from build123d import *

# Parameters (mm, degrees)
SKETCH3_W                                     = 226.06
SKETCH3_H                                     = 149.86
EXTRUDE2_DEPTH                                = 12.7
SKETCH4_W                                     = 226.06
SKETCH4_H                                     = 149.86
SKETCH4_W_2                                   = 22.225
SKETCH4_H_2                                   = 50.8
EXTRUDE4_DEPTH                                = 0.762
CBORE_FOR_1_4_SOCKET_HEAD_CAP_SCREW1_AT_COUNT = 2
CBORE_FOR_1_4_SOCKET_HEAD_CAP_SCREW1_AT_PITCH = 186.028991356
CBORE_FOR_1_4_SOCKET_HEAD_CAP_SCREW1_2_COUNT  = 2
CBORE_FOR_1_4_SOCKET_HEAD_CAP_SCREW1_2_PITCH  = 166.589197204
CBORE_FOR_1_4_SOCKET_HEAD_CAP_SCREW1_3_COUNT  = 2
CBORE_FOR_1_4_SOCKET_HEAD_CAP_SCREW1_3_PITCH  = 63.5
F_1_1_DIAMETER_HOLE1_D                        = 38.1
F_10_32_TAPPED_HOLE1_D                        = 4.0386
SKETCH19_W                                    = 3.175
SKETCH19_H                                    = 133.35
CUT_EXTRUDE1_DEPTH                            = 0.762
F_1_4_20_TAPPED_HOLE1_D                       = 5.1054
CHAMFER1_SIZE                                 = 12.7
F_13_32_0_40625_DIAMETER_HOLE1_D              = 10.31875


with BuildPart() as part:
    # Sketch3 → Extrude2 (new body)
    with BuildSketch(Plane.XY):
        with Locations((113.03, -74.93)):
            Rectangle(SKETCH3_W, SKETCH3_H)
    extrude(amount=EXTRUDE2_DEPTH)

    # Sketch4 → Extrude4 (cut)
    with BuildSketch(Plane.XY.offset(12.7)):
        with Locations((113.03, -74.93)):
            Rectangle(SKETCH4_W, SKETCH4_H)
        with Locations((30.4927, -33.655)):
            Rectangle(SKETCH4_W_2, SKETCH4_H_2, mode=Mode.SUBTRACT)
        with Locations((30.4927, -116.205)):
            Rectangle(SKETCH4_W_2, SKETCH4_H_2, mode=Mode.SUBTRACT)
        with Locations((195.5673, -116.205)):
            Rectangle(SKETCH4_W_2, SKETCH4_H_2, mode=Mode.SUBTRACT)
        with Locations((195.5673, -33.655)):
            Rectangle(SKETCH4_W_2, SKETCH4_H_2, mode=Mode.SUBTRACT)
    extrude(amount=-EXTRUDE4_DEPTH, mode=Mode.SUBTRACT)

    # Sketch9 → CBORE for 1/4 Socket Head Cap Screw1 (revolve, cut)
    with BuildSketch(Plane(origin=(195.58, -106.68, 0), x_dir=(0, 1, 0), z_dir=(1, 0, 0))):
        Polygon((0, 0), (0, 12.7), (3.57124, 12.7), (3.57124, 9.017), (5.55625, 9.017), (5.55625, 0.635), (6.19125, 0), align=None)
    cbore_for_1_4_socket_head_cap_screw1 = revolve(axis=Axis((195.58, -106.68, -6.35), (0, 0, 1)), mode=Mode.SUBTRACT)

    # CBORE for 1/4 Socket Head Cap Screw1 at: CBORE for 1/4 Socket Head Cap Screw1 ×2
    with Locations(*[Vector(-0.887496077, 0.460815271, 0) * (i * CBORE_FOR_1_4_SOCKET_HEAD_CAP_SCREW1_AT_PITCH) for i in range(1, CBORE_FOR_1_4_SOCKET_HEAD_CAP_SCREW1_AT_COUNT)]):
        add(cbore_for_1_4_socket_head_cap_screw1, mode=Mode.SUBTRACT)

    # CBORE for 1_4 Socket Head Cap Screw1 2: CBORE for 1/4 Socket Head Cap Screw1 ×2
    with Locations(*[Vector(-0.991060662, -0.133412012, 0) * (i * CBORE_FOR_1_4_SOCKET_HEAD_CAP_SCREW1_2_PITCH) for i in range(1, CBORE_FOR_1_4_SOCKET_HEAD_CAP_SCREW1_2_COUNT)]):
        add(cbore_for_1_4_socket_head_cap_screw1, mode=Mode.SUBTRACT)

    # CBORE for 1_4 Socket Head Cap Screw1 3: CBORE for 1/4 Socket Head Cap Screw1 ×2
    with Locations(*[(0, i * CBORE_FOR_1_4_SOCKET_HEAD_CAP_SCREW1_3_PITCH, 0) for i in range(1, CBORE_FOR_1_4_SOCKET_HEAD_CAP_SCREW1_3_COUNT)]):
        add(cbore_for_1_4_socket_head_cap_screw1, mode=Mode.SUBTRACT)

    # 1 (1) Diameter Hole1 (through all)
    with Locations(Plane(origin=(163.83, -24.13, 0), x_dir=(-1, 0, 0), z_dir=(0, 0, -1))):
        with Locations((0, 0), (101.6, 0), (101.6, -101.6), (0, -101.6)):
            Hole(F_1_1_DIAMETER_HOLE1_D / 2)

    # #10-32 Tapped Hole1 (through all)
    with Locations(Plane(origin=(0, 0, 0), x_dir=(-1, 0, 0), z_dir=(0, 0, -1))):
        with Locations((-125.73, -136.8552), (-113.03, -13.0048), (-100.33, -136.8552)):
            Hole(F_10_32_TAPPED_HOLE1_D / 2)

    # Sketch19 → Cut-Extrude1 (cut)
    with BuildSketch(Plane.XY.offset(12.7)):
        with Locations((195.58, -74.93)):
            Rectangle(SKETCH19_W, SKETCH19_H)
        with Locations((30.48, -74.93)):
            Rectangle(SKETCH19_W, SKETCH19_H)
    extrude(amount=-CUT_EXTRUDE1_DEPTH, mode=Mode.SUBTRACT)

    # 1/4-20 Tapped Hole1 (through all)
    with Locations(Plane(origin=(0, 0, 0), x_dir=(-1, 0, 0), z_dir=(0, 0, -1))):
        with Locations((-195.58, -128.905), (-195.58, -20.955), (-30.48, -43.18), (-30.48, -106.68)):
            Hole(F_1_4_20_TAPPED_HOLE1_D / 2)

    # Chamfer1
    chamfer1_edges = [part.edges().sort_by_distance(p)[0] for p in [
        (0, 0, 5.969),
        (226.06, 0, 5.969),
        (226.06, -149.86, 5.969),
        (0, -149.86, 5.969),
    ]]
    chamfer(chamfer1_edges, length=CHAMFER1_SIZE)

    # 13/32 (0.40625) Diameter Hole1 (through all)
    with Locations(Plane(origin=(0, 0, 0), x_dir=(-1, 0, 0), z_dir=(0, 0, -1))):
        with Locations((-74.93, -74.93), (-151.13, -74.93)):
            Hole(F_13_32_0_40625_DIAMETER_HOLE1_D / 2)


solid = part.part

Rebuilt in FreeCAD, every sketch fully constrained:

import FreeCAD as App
import Part
import Sketcher
from FreeCAD import Vector
Q = App.Units.Quantity


def edges_at(feature, points):
    """Names of the edges that pass closest to the given points."""
    edges = feature.Shape.Edges
    near = lambda p: min(range(len(edges)), key=lambda i: edges[i].distToShape(Part.Vertex(*p))[0])
    return sorted({f"Edge{near(p) + 1}" for p in points})


def add_polygon(sketch, points):
    """Adds a closed chain of lines whose ends are joined by coincident constraints."""
    first, n = sketch.GeometryCount, len(points)
    for a, b in zip(points, points[1:] + points[:1]):
        sketch.addGeometry(Part.LineSegment(App.Vector(*a, 0), App.Vector(*b, 0)), False)
    for i in range(n):
        sketch.addConstraint(Sketcher.Constraint("Coincident", first + i, 2, first + (i + 1) % n, 1))

doc = App.newDocument("Part")
body = doc.addObject("PartDesign::Body", "Body")

# Sketch on XY plane
sketch1 = body.newObject("Sketcher::SketchObject", "Sketch")
sketch1.AttachmentSupport = (doc.getObject("XY_Plane"), [""])
sketch1.MapMode = "FlatFace"
add_polygon(sketch1, [(0, 0), (0, -149.86), (226.06, -149.86), (226.06, 0)])  # lines 0-3
sketch1.addConstraint([
    Sketcher.Constraint("Vertical", 0),
    Sketcher.Constraint("Horizontal", 1),
    Sketcher.Constraint("Vertical", 2),
    Sketcher.Constraint("Horizontal", 3),
    Sketcher.Constraint("Coincident", 3, 2, -1, 1),
    Sketcher.Constraint("DistanceX", 1, 1, 1, 2, Q("8.9 in")),
    Sketcher.Constraint("DistanceY", 0, 2, 0, 1, Q("5.9 in")),
])
pad1 = body.newObject("PartDesign::Pad", "Pad")
pad1.Profile = sketch1
pad1.Length = Q("0.5 in")

# Sketch on XY plane
sketch2 = body.newObject("Sketcher::SketchObject", "Sketch001")
sketch2.AttachmentSupport = (doc.getObject("XY_Plane"), [""])
sketch2.MapMode = "FlatFace"
sketch2.AttachmentOffset = App.Placement(Vector(0, 0, 0.5 * 25.4), App.Rotation())
add_polygon(sketch2, [(0, 0), (0, -149.86), (226.06, -149.86), (226.06, 0)])  # lines 0-3
add_polygon(sketch2, [(41.6052, -141.605), (19.3802, -141.605), (19.3802, -90.805), (41.6052, -90.805)])  # lines 4-7
add_polygon(sketch2, [(206.6798, -141.605), (184.4548, -141.605), (184.4548, -90.805), (206.6798, -90.805)])  # lines 8-11
add_polygon(sketch2, [(41.6052, -59.055), (19.3802, -59.055), (19.3802, -8.255), (41.6052, -8.255)])  # lines 12-15
add_polygon(sketch2, [(206.6798, -59.055), (184.4548, -59.055), (184.4548, -8.255), (206.6798, -8.255)])  # lines 16-19
sketch2.addConstraint([
    Sketcher.Constraint("Vertical", 0),
    Sketcher.Constraint("Horizontal", 1),
    Sketcher.Constraint("Vertical", 2),
    Sketcher.Constraint("Horizontal", 3),
    Sketcher.Constraint("Horizontal", 4),
    Sketcher.Constraint("Vertical", 5),
    Sketcher.Constraint("Horizontal", 6),
    Sketcher.Constraint("Vertical", 7),
    Sketcher.Constraint("Horizontal", 8),
    Sketcher.Constraint("Vertical", 9),
    Sketcher.Constraint("Horizontal", 10),
    Sketcher.Constraint("Vertical", 11),
    Sketcher.Constraint("Horizontal", 12),
    Sketcher.Constraint("Vertical", 13),
    Sketcher.Constraint("Horizontal", 14),
    Sketcher.Constraint("Vertical", 15),
    Sketcher.Constraint("Horizontal", 16),
    Sketcher.Constraint("Vertical", 17),
    Sketcher.Constraint("Horizontal", 18),
    Sketcher.Constraint("Vertical", 19),
    Sketcher.Constraint("Coincident", 3, 2, -1, 1),
    Sketcher.Constraint("Horizontal", 7, 2, 8, 2),
    Sketcher.Constraint("Horizontal", 6, 2, 9, 2),
    Sketcher.Constraint("Horizontal", 15, 2, 16, 2),
    Sketcher.Constraint("Horizontal", 14, 2, 17, 2),
    Sketcher.Constraint("Vertical", 5, 2, 12, 2),
    Sketcher.Constraint("Vertical", 7, 2, 14, 2),
    Sketcher.Constraint("Vertical", 9, 2, 16, 2),
    Sketcher.Constraint("Vertical", 11, 2, 18, 2),
    Sketcher.Constraint("Equal", 6, 8),
    Sketcher.Constraint("Equal", 11, 13),
    Sketcher.Constraint("DistanceY", 5, 1, 5, 2, Q("2 in")),
    Sketcher.Constraint("DistanceX", 1, 1, 1, 2, Q("8.9 in")),
    Sketcher.Constraint("DistanceY", 0, 2, 0, 1, Q("5.9 in")),
    Sketcher.Constraint("DistanceX", 4, 2, 4, 1, Q("0.875 in")),
    Sketcher.Constraint("DistanceY", 5, 2, 12, 2, Q("1.25 in")),
    Sketcher.Constraint("DistanceX", -1, 1, 4, 2, Q("0.763 in")),
    Sketcher.Constraint("DistanceY", 4, 2, -1, 1, Q("5.575 in")),
    Sketcher.Constraint("DistanceX", -1, 1, 8, 2, Q("7.262 in")),
])
pocket1 = body.newObject("PartDesign::Pocket", "Pocket")
pocket1.Profile = sketch2
pocket1.Length = Q("0.03 in")

# Sketch on YZ plane
sketch3 = body.newObject("Sketcher::SketchObject", "Sketch002")
sketch3.AttachmentSupport = (doc.getObject("YZ_Plane"), [""])
sketch3.MapMode = "FlatFace"
sketch3.AttachmentOffset = App.Placement(Vector(0, 0, 7.7 * 25.4), App.Rotation())
add_polygon(sketch3, [(-106.68, 12.7), (-106.68, 0), (-100.48875, 0), (-101.12375, 0.635), (-101.12375, 9.017), (-103.10876, 9.017), (-103.10876, 12.7)])  # lines 0-6
sketch3.addGeometry(Part.LineSegment(Vector(-106.68, 0, 0), Vector(-106.68, 12.7, 0)), True)  # axis
sketch3.addConstraint([
    Sketcher.Constraint("Vertical", 0),
    Sketcher.Constraint("Horizontal", 1),
    Sketcher.Constraint("Vertical", 3),
    Sketcher.Constraint("Horizontal", 4),
    Sketcher.Constraint("Vertical", 5),
    Sketcher.Constraint("Horizontal", 6),
    Sketcher.Constraint("Vertical", 7),
    Sketcher.Constraint("Coincident", 7, 1, 0, 2),
    Sketcher.Constraint("PointOnObject", 0, 2, -1),
    Sketcher.Constraint("Horizontal", 5, 2, 7, 2),
    Sketcher.Constraint("DistanceY", 0, 2, 0, 1, Q("0.5 in")),
    Sketcher.Constraint("Angle", 2, Q("135 deg")),
    Sketcher.Constraint("DistanceY", 3, 1, 3, 2, Q("0.33 in")),
    Sketcher.Constraint("DistanceX", 0, 2, -1, 1, Q("4.2 in")),
    Sketcher.Constraint("DistanceY", 5, 1, 5, 2, Q("0.145 in")),
    Sketcher.Constraint("DistanceX", 6, 2, 6, 1, Q("0.1406 in")),
    Sketcher.Constraint("DistanceX", 0, 2, 2, 2, Q("0.21875 in")),
])
groove = body.newObject("PartDesign::Groove", "Groove")
groove.Profile = sketch3
groove.ReferenceAxis = (sketch3, ["Axis0"])
groove.Angle = 360
doc.recompute()

datumline = body.newObject("PartDesign::Line", "DatumLine")
datumline.Placement = App.Placement(Vector(0, 0, 0), App.Rotation(Vector(0, 0, 1), Vector(-0.887496077, 0.460815271, 0)))
linearpattern = body.newObject("PartDesign::LinearPattern", "LinearPattern")
linearpattern.Originals = [groove]
linearpattern.Direction = (datumline, [""])
linearpattern.Mode = "offset"
linearpattern.Offset = 186.028991
linearpattern.Occurrences = 2
body.Tip = linearpattern
doc.recompute()

datumline2 = body.newObject("PartDesign::Line", "DatumLine001")
datumline2.Placement = App.Placement(Vector(0, 0, 0), App.Rotation(Vector(0, 0, 1), Vector(-0.991060662, -0.133412012, 0)))
linearpattern2 = body.newObject("PartDesign::LinearPattern", "LinearPattern001")
linearpattern2.Originals = [groove]
linearpattern2.Direction = (datumline2, [""])
linearpattern2.Mode = "offset"
linearpattern2.Offset = 166.589197
linearpattern2.Occurrences = 2
body.Tip = linearpattern2
doc.recompute()

linearpattern3 = body.newObject("PartDesign::LinearPattern", "LinearPattern002")
linearpattern3.Originals = [groove]
linearpattern3.Direction = (doc.getObject("Y_Axis"), [""])
linearpattern3.Mode = "offset"
linearpattern3.Offset = Q("2.5 in")
linearpattern3.Occurrences = 2
body.Tip = linearpattern3

# Sketch on XY plane
sketch4 = body.newObject("Sketcher::SketchObject", "Sketch003")
sketch4.AttachmentSupport = (doc.getObject("XY_Plane"), [""])
sketch4.MapMode = "FlatFace"
sketch4.addGeometry([
    Part.Circle(Vector(163.83, -24.13, 0), Vector(0, 0, 1), 19.05),
    Part.Circle(Vector(62.23, -24.13, 0), Vector(0, 0, 1), 19.05),
    Part.Circle(Vector(62.23, -125.73, 0), Vector(0, 0, 1), 19.05),
    Part.Circle(Vector(163.83, -125.73, 0), Vector(0, 0, 1), 19.05),
], False)
sketch4.addConstraint([
    Sketcher.Constraint("Equal", 0, 1),
    Sketcher.Constraint("Equal", 1, 2),
    Sketcher.Constraint("Equal", 2, 3),
    Sketcher.Constraint("Horizontal", 0, 3, 1, 3),
    Sketcher.Constraint("Horizontal", 2, 3, 3, 3),
    Sketcher.Constraint("Vertical", 1, 3, 2, 3),
    Sketcher.Constraint("Vertical", 0, 3, 3, 3),
    Sketcher.Constraint("Diameter", 0, Q("1.5 in")),
    Sketcher.Constraint("DistanceX", 1, 3, 0, 3, Q("4 in")),
    Sketcher.Constraint("DistanceY", 2, 3, 1, 3, Q("4 in")),
    Sketcher.Constraint("DistanceX", -1, 1, 0, 3, Q("6.45 in")),
    Sketcher.Constraint("DistanceY", 0, 3, -1, 1, Q("0.95 in")),
])
doc.recompute()
hole = body.newObject("PartDesign::Hole", "Hole")
hole.Profile = sketch4
hole.ThreadType = "None"
hole.Diameter = Q("1.5 in")
hole.DepthType = "ThroughAll"
hole.Reversed = True

# Sketch on XY plane
sketch5 = body.newObject("Sketcher::SketchObject", "Sketch004")
sketch5.AttachmentSupport = (doc.getObject("XY_Plane"), [""])
sketch5.MapMode = "FlatFace"
sketch5.addGeometry([
    Part.Circle(Vector(125.73, -136.8552, 0), Vector(0, 0, 1), 2.0193),
    Part.Circle(Vector(113.03, -13.0048, 0), Vector(0, 0, 1), 2.0193),
    Part.Circle(Vector(100.33, -136.8552, 0), Vector(0, 0, 1), 2.0193),
], False)
sketch5.addConstraint([
    Sketcher.Constraint("Equal", 0, 1),
    Sketcher.Constraint("Equal", 1, 2),
    Sketcher.Constraint("Horizontal", 0, 3, 2, 3),
    Sketcher.Constraint("Diameter", 0, Q("0.159 in")),
    Sketcher.Constraint("DistanceX", 2, 3, 0, 3, Q("1 in")),
    Sketcher.Constraint("DistanceX", 1, 3, 0, 3, Q("0.5 in")),
    Sketcher.Constraint("DistanceX", -1, 1, 0, 3, Q("4.95 in")),
    Sketcher.Constraint("DistanceY", 0, 3, -1, 1, Q("5.388 in")),
    Sketcher.Constraint("DistanceY", 1, 3, -1, 1, Q("0.512 in")),
])
doc.recompute()
hole2 = body.newObject("PartDesign::Hole", "Hole001")
hole2.Profile = sketch5
hole2.ThreadType = "None"
hole2.Diameter = Q("0.159 in")
hole2.DepthType = "ThroughAll"
hole2.Reversed = True

# Sketch on XY plane
sketch6 = body.newObject("Sketcher::SketchObject", "Sketch005")
sketch6.AttachmentSupport = (doc.getObject("XY_Plane"), [""])
sketch6.MapMode = "FlatFace"
sketch6.AttachmentOffset = App.Placement(Vector(0, 0, 0.5 * 25.4), App.Rotation())
add_polygon(sketch6, [(193.9925, -8.255), (193.9925, -141.605), (197.1675, -141.605), (197.1675, -8.255)])  # lines 0-3
add_polygon(sketch6, [(28.8925, -8.255), (28.8925, -141.605), (32.0675, -141.605), (32.0675, -8.255)])  # lines 4-7
sketch6.addConstraint([
    Sketcher.Constraint("Vertical", 0),
    Sketcher.Constraint("Horizontal", 1),
    Sketcher.Constraint("Vertical", 2),
    Sketcher.Constraint("Horizontal", 3),
    Sketcher.Constraint("Vertical", 4),
    Sketcher.Constraint("Horizontal", 5),
    Sketcher.Constraint("Vertical", 6),
    Sketcher.Constraint("Horizontal", 7),
    Sketcher.Constraint("Horizontal", 1, 2, 4, 2),
    Sketcher.Constraint("Horizontal", 3, 2, 6, 2),
    Sketcher.Constraint("Equal", 3, 5),
    Sketcher.Constraint("DistanceY", 0, 2, 0, 1, Q("5.25 in")),
    Sketcher.Constraint("DistanceX", 4, 2, 0, 2, Q("6.5 in")),
    Sketcher.Constraint("DistanceX", 1, 1, 1, 2, Q("0.125 in")),
    Sketcher.Constraint("DistanceY", 0, 2, -1, 1, Q("5.575 in")),
    Sketcher.Constraint("DistanceX", -1, 1, 0, 2, Q("7.6375 in")),
])
pocket2 = body.newObject("PartDesign::Pocket", "Pocket001")
pocket2.Profile = sketch6
pocket2.Length = Q("0.03 in")

# Sketch on XY plane
sketch7 = body.newObject("Sketcher::SketchObject", "Sketch006")
sketch7.AttachmentSupport = (doc.getObject("XY_Plane"), [""])
sketch7.MapMode = "FlatFace"
sketch7.addGeometry([
    Part.Circle(Vector(195.58, -128.905, 0), Vector(0, 0, 1), 2.5527),
    Part.Circle(Vector(195.58, -20.955, 0), Vector(0, 0, 1), 2.5527),
    Part.Circle(Vector(30.48, -43.18, 0), Vector(0, 0, 1), 2.5527),
    Part.Circle(Vector(30.48, -106.68, 0), Vector(0, 0, 1), 2.5527),
], False)
sketch7.addConstraint([
    Sketcher.Constraint("Equal", 0, 1),
    Sketcher.Constraint("Equal", 1, 2),
    Sketcher.Constraint("Equal", 2, 3),
    Sketcher.Constraint("Vertical", 0, 3, 1, 3),
    Sketcher.Constraint("Vertical", 2, 3, 3, 3),
    Sketcher.Constraint("Diameter", 0, Q("0.201 in")),
    Sketcher.Constraint("DistanceX", -1, 1, 0, 3, Q("7.7 in")),
    Sketcher.Constraint("DistanceX", -1, 1, 2, 3, Q("1.2 in")),
    Sketcher.Constraint("DistanceY", 2, 3, -1, 1, Q("1.7 in")),
    Sketcher.Constraint("DistanceY", 3, 3, -1, 1, Q("4.2 in")),
    Sketcher.Constraint("DistanceY", 0, 3, 1, 3, Q("4.25 in")),
    Sketcher.Constraint("DistanceY", 0, 3, -1, 1, Q("5.075 in")),
])
doc.recompute()
hole3 = body.newObject("PartDesign::Hole", "Hole002")
hole3.Profile = sketch7
hole3.ThreadType = "None"
hole3.Diameter = Q("0.201 in")
hole3.DepthType = "ThroughAll"
hole3.Reversed = True
doc.recompute()

chamfer = body.newObject("PartDesign::Chamfer", "Chamfer")
chamfer.Base = (hole3, edges_at(hole3, [
    (0, 0, 5.969),
    (226.06, 0, 5.969),
    (226.06, -149.86, 5.969),
    (0, -149.86, 5.969),
]))
chamfer.Size = Q("0.5 in")

# Sketch on XY plane
sketch8 = body.newObject("Sketcher::SketchObject", "Sketch007")
sketch8.AttachmentSupport = (doc.getObject("XY_Plane"), [""])
sketch8.MapMode = "FlatFace"
sketch8.addGeometry([
    Part.Circle(Vector(74.93, -74.93, 0), Vector(0, 0, 1), 5.159375),
    Part.Circle(Vector(151.13, -74.93, 0), Vector(0, 0, 1), 5.159375),
], False)
sketch8.addConstraint([
    Sketcher.Constraint("Equal", 0, 1),
    Sketcher.Constraint("Horizontal", 0, 3, 1, 3),
    Sketcher.Constraint("Diameter", 0, Q("0.40625 in")),
    Sketcher.Constraint("DistanceX", 0, 3, 1, 3, Q("3 in")),
    Sketcher.Constraint("DistanceX", -1, 1, 0, 3, Q("2.95 in")),
    Sketcher.Constraint("DistanceY", 0, 3, -1, 1, Q("2.95 in")),
])
doc.recompute()
hole4 = body.newObject("PartDesign::Hole", "Hole003")
hole4.Profile = sketch8
hole4.ThreadType = "None"
hole4.Diameter = Q("0.40625 in")
hole4.DepthType = "ThroughAll"
hole4.Reversed = True

doc.recompute()
